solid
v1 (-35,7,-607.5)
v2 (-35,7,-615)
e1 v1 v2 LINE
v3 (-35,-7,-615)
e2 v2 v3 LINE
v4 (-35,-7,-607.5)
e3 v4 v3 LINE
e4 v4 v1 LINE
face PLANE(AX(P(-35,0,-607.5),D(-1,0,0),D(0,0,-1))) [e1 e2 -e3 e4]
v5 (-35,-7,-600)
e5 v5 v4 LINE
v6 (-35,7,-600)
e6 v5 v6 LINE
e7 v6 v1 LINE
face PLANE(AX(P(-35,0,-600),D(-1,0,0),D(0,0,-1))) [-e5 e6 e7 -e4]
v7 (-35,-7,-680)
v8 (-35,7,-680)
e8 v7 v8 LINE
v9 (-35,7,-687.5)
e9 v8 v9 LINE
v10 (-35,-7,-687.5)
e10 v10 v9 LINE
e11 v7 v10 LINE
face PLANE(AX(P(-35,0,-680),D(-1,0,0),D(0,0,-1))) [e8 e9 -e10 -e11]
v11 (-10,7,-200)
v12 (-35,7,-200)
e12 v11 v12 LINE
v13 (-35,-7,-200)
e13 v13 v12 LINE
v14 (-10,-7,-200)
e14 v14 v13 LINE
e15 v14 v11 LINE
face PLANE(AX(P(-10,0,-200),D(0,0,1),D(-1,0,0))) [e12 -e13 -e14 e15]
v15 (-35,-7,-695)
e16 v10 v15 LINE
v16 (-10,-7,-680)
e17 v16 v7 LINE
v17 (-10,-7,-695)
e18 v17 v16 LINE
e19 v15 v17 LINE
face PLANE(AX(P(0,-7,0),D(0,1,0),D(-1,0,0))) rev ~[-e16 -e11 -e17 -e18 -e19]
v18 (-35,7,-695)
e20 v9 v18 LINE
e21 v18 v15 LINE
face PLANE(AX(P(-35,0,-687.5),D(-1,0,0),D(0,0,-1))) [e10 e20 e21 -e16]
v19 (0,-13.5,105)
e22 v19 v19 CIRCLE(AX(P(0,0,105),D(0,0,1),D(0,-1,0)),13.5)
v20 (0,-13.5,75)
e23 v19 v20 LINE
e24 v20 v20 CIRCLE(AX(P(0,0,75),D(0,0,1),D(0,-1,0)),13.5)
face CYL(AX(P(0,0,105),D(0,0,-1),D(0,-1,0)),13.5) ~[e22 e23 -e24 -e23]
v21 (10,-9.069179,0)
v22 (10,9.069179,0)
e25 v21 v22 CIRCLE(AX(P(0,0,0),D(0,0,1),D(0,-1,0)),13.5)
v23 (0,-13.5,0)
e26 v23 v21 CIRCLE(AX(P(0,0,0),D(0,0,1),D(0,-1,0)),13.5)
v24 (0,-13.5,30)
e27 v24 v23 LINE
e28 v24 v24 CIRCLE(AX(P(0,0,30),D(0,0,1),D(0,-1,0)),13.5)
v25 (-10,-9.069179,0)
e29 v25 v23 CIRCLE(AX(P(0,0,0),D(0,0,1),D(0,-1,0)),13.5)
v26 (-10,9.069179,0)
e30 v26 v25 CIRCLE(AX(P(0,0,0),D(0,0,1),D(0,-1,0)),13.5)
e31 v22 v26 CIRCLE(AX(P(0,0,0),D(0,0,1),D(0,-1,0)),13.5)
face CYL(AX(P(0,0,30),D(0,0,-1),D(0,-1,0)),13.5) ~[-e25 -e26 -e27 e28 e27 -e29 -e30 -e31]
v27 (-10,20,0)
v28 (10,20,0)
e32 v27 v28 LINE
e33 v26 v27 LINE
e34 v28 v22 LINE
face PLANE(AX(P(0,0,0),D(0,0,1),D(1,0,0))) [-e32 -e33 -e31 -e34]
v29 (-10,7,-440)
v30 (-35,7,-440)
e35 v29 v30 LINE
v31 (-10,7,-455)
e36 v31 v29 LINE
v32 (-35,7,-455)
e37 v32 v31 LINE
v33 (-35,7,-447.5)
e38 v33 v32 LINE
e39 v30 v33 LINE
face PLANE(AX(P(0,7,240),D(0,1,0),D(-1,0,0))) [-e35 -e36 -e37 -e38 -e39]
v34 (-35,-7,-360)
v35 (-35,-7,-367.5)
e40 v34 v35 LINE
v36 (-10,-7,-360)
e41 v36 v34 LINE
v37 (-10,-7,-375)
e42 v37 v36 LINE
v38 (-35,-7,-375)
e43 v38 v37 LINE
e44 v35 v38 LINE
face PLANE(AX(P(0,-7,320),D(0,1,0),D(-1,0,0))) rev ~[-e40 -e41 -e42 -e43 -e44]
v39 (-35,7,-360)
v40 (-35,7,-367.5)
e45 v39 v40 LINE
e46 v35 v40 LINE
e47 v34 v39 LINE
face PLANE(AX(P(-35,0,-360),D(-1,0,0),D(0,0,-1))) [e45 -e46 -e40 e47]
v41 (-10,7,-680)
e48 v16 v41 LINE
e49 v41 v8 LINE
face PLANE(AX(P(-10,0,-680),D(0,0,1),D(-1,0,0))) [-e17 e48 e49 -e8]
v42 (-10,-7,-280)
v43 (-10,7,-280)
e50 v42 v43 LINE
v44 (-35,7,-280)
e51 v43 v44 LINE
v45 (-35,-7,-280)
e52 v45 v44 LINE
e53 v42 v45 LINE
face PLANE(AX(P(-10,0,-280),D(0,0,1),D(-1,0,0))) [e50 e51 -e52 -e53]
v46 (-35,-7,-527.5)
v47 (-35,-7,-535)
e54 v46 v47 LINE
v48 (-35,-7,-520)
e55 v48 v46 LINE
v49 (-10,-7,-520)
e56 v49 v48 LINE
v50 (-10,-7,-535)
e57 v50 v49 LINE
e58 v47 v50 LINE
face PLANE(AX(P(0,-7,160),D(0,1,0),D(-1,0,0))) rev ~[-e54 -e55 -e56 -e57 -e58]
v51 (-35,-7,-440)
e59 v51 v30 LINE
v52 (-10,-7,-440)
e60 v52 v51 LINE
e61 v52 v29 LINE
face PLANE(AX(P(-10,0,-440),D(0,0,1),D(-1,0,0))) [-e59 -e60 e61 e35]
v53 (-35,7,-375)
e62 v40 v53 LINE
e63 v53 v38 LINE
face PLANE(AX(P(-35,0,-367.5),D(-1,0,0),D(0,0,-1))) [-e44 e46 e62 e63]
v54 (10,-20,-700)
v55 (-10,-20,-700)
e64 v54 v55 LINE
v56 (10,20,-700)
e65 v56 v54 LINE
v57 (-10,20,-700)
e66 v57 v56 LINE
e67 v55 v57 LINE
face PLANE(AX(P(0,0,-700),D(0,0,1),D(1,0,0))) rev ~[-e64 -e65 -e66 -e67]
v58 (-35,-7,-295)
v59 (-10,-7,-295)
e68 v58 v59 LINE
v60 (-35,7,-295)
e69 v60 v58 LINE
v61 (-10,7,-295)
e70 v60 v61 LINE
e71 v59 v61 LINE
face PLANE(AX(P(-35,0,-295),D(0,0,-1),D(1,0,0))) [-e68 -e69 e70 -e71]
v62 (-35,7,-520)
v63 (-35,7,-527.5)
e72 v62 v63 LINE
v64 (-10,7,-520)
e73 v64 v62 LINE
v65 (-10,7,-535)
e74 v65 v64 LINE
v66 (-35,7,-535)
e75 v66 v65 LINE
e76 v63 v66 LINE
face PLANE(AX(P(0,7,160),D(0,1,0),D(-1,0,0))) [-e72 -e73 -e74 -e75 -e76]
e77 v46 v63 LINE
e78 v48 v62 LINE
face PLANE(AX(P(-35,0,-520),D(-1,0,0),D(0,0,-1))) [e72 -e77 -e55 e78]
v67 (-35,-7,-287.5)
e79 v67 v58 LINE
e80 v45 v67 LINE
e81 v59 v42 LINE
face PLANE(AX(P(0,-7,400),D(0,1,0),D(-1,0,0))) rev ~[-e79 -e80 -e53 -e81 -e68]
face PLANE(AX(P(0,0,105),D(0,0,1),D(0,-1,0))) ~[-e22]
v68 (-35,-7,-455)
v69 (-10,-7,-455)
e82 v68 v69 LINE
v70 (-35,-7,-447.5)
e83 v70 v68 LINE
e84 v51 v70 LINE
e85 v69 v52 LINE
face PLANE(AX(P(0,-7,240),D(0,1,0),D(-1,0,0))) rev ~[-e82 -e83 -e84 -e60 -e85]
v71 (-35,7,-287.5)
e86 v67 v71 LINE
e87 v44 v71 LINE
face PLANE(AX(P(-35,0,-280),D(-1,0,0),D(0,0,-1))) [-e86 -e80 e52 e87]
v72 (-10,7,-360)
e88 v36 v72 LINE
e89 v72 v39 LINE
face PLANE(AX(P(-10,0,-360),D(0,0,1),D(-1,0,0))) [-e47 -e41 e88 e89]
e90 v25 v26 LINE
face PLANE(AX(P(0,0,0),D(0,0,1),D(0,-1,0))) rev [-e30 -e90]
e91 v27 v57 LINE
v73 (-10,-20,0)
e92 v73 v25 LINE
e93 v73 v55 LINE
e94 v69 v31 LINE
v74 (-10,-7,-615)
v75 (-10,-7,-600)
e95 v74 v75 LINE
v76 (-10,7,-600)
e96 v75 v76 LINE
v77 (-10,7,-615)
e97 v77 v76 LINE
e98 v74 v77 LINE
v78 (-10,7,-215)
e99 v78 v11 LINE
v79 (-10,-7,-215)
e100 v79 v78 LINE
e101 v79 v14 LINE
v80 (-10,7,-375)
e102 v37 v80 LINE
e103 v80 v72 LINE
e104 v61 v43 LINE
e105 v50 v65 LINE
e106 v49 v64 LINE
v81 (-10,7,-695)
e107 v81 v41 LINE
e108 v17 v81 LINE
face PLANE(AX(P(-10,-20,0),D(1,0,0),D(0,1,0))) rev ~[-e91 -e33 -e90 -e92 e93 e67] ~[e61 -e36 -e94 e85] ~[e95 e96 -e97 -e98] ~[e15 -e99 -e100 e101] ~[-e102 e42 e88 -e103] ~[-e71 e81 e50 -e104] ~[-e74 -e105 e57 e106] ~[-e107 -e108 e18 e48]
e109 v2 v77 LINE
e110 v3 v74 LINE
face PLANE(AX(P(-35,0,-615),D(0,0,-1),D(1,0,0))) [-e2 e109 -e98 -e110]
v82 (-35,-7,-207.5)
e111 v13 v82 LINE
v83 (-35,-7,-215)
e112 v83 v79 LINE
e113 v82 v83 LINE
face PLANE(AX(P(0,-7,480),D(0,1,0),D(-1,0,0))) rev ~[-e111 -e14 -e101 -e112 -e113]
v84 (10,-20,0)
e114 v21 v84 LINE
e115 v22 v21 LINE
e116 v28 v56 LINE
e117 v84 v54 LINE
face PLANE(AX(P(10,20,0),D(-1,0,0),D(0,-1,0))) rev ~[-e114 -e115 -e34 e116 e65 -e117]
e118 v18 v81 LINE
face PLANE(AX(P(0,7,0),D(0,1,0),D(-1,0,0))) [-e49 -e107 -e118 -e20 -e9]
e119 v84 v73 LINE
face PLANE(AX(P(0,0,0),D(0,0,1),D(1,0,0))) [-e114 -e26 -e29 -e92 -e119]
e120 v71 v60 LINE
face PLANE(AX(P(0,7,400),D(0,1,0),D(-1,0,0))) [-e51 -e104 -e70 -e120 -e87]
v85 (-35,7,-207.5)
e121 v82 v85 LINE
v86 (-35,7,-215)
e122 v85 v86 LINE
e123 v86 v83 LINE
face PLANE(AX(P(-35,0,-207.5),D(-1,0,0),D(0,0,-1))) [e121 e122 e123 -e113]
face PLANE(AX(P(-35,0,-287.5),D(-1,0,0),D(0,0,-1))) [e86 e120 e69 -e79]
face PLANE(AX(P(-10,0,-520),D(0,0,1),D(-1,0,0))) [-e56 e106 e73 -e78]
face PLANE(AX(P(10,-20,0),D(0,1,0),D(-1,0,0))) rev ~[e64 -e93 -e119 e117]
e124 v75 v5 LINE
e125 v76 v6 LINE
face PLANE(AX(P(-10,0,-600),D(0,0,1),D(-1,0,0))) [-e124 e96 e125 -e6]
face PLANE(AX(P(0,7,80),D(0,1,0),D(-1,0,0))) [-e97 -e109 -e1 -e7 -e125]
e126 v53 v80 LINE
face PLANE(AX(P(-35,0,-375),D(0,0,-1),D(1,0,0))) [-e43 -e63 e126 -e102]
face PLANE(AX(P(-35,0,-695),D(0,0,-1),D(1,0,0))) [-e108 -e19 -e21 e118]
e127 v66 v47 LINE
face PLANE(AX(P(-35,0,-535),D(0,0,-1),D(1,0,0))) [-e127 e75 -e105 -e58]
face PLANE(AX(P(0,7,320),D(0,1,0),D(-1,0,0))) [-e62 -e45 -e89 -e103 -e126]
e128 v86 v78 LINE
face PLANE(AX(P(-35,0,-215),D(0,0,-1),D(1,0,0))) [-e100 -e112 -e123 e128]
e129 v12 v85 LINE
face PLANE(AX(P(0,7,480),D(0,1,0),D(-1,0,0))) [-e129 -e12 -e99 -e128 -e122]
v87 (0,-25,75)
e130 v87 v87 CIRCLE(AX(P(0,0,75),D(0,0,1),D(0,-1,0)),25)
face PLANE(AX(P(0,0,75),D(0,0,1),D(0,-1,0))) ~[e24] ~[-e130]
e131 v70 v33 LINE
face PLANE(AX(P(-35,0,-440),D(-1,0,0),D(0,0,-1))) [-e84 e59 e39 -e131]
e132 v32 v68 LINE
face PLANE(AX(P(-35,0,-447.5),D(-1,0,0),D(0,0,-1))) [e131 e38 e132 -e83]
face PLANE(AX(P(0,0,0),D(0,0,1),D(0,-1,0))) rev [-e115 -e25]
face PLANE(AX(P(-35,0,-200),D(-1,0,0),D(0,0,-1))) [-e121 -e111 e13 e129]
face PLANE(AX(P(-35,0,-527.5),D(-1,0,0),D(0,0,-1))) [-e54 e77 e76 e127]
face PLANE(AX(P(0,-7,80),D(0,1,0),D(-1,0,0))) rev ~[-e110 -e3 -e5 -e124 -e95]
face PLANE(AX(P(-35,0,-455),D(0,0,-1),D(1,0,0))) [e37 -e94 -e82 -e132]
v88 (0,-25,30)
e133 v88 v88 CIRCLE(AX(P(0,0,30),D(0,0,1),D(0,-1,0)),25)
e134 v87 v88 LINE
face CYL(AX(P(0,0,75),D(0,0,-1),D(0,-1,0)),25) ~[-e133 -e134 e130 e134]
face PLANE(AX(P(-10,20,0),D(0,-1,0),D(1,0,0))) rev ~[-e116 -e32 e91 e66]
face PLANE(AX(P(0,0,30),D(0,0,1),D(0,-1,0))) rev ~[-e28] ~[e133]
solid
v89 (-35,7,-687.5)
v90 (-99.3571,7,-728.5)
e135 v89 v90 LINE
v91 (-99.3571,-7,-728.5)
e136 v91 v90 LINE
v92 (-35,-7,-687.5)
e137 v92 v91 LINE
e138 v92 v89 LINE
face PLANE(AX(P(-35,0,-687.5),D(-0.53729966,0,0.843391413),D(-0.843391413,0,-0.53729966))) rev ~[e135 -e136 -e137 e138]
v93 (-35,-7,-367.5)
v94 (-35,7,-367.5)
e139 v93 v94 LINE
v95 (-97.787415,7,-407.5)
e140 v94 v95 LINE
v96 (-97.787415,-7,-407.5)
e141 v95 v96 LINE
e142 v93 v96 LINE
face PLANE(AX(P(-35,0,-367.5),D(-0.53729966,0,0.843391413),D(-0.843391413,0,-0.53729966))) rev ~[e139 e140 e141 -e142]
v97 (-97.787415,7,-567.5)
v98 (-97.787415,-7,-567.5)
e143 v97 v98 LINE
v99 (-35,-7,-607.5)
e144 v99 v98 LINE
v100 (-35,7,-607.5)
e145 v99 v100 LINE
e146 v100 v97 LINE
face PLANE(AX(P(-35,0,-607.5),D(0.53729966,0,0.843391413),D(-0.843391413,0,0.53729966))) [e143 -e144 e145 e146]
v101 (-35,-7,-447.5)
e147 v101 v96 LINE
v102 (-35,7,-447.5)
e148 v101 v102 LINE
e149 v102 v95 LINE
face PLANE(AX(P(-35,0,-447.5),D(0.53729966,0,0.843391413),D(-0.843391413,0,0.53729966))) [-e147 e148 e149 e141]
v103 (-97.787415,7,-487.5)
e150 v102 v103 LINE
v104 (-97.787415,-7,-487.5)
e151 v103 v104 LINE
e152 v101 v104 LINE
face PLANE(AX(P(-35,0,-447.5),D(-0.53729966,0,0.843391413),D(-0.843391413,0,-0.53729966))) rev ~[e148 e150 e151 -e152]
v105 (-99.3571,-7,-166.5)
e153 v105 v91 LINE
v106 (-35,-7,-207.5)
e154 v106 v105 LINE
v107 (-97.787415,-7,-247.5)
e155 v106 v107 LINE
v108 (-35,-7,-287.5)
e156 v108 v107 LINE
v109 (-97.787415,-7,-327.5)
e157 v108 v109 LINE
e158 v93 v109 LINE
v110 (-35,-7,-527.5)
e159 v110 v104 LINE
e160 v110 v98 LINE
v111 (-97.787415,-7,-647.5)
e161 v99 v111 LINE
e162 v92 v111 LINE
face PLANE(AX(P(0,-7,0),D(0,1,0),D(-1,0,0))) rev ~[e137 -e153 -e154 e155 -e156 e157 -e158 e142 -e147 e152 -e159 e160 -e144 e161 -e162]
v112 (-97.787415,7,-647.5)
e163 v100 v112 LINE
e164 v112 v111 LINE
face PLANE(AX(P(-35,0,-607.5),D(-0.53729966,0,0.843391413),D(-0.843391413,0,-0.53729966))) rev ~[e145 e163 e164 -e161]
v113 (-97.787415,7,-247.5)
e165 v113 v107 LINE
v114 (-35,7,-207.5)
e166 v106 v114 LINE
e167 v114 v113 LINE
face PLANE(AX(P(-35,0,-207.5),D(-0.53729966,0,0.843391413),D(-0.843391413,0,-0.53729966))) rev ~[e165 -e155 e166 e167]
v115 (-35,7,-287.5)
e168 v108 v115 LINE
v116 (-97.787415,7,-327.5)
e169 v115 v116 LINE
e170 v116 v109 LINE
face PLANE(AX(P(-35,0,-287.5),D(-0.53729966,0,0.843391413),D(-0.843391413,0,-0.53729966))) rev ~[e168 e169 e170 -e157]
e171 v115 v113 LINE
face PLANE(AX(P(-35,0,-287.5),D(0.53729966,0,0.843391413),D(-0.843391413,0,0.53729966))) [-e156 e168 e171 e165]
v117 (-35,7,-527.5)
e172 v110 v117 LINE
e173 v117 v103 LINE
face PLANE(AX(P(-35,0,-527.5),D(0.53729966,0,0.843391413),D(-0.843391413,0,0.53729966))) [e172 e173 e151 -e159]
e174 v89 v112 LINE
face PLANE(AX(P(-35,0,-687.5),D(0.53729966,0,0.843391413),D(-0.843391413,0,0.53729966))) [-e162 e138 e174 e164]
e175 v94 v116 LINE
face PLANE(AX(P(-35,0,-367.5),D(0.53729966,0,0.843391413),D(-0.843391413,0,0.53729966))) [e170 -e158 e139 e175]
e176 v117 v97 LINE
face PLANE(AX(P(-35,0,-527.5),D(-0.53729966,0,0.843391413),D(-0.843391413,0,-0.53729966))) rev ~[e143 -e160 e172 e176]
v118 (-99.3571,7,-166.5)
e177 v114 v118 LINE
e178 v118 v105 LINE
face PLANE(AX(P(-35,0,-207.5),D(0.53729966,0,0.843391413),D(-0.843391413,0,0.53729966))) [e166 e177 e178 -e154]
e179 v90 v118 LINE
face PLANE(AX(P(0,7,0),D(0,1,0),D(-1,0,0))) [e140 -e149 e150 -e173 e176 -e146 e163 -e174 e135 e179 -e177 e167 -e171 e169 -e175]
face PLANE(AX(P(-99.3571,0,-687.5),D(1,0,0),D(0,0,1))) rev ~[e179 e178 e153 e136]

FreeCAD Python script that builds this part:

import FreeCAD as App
import Part
import Sketcher
Q = App.Units.Quantity


def add_polygon(sketch, points):
    """Adds a closed chain of lines whose ends are joined by coincident constraints."""
    first, n = sketch.GeometryCount, len(points)
    for a, b in zip(points, points[1:] + points[:1]):
        sketch.addGeometry(Part.LineSegment(App.Vector(*a, 0), App.Vector(*b, 0)), False)
    for i in range(n):
        sketch.addConstraint(Sketcher.Constraint("Coincident", first + i, 2, first + (i + 1) % n, 1))

doc = App.newDocument("Part")
params = doc.addObject("Spreadsheet::Sheet", "Params")
for row, (alias, value) in enumerate([
    ("sketch1_width", "20 mm"),
    ("sketch1_height", "40 mm"),
    ("pad1_length", "700 mm"),
    ("sketch2_width", "25 mm"),
    ("sketch2_height", "82 mm"),
    ("sketch2_height2", "15 mm"),
    ("pad2_length", "14 mm"),
    ("linearpattern_pitch", "80 mm"),
    ("sketch3_height", "30 mm"),
    ("sketch3_height2", "45 mm"),
    ("sketch3_width", "13.5 mm"),
    ("sketch3_width2", "11.5 mm"),
    ("revolution_angle", "360 deg"),
], start=1):
    params.set(f"A{row}", alias)
    params.set(f"B{row}", "=" + value)
    params.setAlias(f"B{row}", alias)

body = doc.addObject("PartDesign::Body", "Body")
body.AllowCompound = True

# Sketch on XY plane
sketch1 = doc.addObject("Sketcher::SketchObject", "Sketch")
body.addObject(sketch1)
sketch1.AttachmentSupport = (doc.XY_Plane, [""])
sketch1.MapMode = "FlatFace"
add_polygon(sketch1, [(10, 20), (-10, 20), (-10, -20), (10, -20)])  # lines 0-3
sketch1.addConstraint(Sketcher.Constraint("Horizontal", 0))
sketch1.addConstraint(Sketcher.Constraint("Vertical", 1))
sketch1.addConstraint(Sketcher.Constraint("Horizontal", 2))
sketch1.addConstraint(Sketcher.Constraint("Vertical", 3))
sketch1.addConstraint(Sketcher.Constraint("Symmetric", 0, 2, 2, 2, -1, 1))
sketch1.addConstraint(Sketcher.Constraint("DistanceX", 0, 2, 0, 1, Q("20 mm")))
sketch1.addConstraint(Sketcher.Constraint("DistanceY", 1, 2, 1, 1, Q("40 mm")))
sketch1.setExpression("Constraints[9]", "Params.sketch1_width")
sketch1.setExpression("Constraints[10]", "Params.sketch1_height")
pad1 = doc.addObject("PartDesign::Pad", "Pad")
body.addObject(pad1)
pad1.Profile = sketch1
pad1.setExpression("Length", "Params.pad1_length")
pad1.Reversed = True

# Sketch on XZ plane
sketch2 = doc.addObject("Sketcher::SketchObject", "Sketch001")
body.addObject(sketch2)
sketch2.AttachmentSupport = (doc.XZ_Plane, [""])
sketch2.MapMode = "FlatFace"
add_polygon(sketch2, [(-99, -646), (-35, -688), (-99, -728)])  # lines 0-2
add_polygon(sketch2, [(-35, -680), (-10, -680), (-10, -695), (-35, -695), (-35, -688)])  # lines 3-7
sketch2.addConstraint(Sketcher.Constraint("Vertical", 2))
sketch2.addConstraint(Sketcher.Constraint("Horizontal", 3))
sketch2.addConstraint(Sketcher.Constraint("Vertical", 4))
sketch2.addConstraint(Sketcher.Constraint("Horizontal", 5))
sketch2.addConstraint(Sketcher.Constraint("Vertical", 6))
sketch2.addConstraint(Sketcher.Constraint("Vertical", 7))
sketch2.addConstraint(Sketcher.Constraint("Coincident", 6, 2, 0, 2))
sketch2.addConstraint(Sketcher.Constraint("Equal", 6, 7))
sketch2.addConstraint(Sketcher.Constraint("Equal", 0, 1))
sketch2.addConstraint(Sketcher.Constraint("DistanceX", 3, 1, 3, 2, Q("25 mm")))
sketch2.addConstraint(Sketcher.Constraint("DistanceY", 2, 1, 2, 2, Q("82 mm")))
sketch2.addConstraint(Sketcher.Constraint("DistanceY", 4, 2, 4, 1, Q("15 mm")))
sketch2.addConstraint(Sketcher.Constraint("DistanceX", 0, 2, -1, 1, Q("35 mm")))
sketch2.addConstraint(Sketcher.Constraint("DistanceY", 3, 2, -1, 1, Q("680 mm")))
sketch2.addConstraint(Sketcher.Constraint("Angle", 0, Q("-32.5 deg")))
sketch2.setExpression("Constraints[17]", "Params.sketch2_width")
sketch2.setExpression("Constraints[18]", "Params.sketch2_height")
sketch2.setExpression("Constraints[19]", "Params.sketch2_height2")
pad2 = doc.addObject("PartDesign::Pad", "Pad001")
body.addObject(pad2)
pad2.Profile = sketch2
pad2.setExpression("Length", "Params.pad2_length")
pad2.Midplane = True
doc.recompute()

linearpattern = doc.addObject("PartDesign::LinearPattern", "LinearPattern")
body.addObject(linearpattern)
linearpattern.Originals = [pad2]
linearpattern.Direction = (doc.Z_Axis, [""])
linearpattern.Mode = "offset"
linearpattern.setExpression("Offset", "Params.linearpattern_pitch")
linearpattern.Occurrences = 7
body.Tip = linearpattern

# Sketch on YZ plane
sketch3 = doc.addObject("Sketcher::SketchObject", "Sketch002")
body.addObject(sketch3)
sketch3.AttachmentSupport = (doc.YZ_Plane, [""])
sketch3.MapMode = "FlatFace"
add_polygon(sketch3, [(-14, 0), (0, 0), (0, 105), (-14, 105), (-14, 75), (-25, 75), (-25, 30), (-14, 30)])  # lines 0-7
sketch3.addConstraint(Sketcher.Constraint("Horizontal", 0))
sketch3.addConstraint(Sketcher.Constraint("Vertical", 1))
sketch3.addConstraint(Sketcher.Constraint("Horizontal", 2))
sketch3.addConstraint(Sketcher.Constraint("Vertical", 3))
sketch3.addConstraint(Sketcher.Constraint("Horizontal", 4))
sketch3.addConstraint(Sketcher.Constraint("Vertical", 5))
sketch3.addConstraint(Sketcher.Constraint("Horizontal", 6))
sketch3.addConstraint(Sketcher.Constraint("Vertical", 7))
sketch3.addConstraint(Sketcher.Constraint("Coincident", 0, 2, -1, 1))
sketch3.addConstraint(Sketcher.Constraint("Vertical", 3, 2, 6, 2))
sketch3.addConstraint(Sketcher.Constraint("Equal", 3, 7))
sketch3.addConstraint(Sketcher.Constraint("DistanceY", 3, 2, 3, 1, Q("30 mm")))
sketch3.addConstraint(Sketcher.Constraint("DistanceY", 5, 2, 5, 1, Q("45 mm")))
sketch3.addConstraint(Sketcher.Constraint("DistanceX", 0, 1, 0, 2, Q("13.5 mm")))
sketch3.addConstraint(Sketcher.Constraint("DistanceX", 4, 2, 4, 1, Q("11.5 mm")))
sketch3.setExpression("Constraints[19]", "Params.sketch3_height")
sketch3.setExpression("Constraints[20]", "Params.sketch3_height2")
sketch3.setExpression("Constraints[21]", "Params.sketch3_width")
sketch3.setExpression("Constraints[22]", "Params.sketch3_width2")
revolution = doc.addObject("PartDesign::Revolution", "Revolution")
body.addObject(revolution)
revolution.Profile = sketch3
revolution.ReferenceAxis = (sketch3, ["V_Axis"])
revolution.setExpression("Angle", "Params.revolution_angle")

doc.recompute()
